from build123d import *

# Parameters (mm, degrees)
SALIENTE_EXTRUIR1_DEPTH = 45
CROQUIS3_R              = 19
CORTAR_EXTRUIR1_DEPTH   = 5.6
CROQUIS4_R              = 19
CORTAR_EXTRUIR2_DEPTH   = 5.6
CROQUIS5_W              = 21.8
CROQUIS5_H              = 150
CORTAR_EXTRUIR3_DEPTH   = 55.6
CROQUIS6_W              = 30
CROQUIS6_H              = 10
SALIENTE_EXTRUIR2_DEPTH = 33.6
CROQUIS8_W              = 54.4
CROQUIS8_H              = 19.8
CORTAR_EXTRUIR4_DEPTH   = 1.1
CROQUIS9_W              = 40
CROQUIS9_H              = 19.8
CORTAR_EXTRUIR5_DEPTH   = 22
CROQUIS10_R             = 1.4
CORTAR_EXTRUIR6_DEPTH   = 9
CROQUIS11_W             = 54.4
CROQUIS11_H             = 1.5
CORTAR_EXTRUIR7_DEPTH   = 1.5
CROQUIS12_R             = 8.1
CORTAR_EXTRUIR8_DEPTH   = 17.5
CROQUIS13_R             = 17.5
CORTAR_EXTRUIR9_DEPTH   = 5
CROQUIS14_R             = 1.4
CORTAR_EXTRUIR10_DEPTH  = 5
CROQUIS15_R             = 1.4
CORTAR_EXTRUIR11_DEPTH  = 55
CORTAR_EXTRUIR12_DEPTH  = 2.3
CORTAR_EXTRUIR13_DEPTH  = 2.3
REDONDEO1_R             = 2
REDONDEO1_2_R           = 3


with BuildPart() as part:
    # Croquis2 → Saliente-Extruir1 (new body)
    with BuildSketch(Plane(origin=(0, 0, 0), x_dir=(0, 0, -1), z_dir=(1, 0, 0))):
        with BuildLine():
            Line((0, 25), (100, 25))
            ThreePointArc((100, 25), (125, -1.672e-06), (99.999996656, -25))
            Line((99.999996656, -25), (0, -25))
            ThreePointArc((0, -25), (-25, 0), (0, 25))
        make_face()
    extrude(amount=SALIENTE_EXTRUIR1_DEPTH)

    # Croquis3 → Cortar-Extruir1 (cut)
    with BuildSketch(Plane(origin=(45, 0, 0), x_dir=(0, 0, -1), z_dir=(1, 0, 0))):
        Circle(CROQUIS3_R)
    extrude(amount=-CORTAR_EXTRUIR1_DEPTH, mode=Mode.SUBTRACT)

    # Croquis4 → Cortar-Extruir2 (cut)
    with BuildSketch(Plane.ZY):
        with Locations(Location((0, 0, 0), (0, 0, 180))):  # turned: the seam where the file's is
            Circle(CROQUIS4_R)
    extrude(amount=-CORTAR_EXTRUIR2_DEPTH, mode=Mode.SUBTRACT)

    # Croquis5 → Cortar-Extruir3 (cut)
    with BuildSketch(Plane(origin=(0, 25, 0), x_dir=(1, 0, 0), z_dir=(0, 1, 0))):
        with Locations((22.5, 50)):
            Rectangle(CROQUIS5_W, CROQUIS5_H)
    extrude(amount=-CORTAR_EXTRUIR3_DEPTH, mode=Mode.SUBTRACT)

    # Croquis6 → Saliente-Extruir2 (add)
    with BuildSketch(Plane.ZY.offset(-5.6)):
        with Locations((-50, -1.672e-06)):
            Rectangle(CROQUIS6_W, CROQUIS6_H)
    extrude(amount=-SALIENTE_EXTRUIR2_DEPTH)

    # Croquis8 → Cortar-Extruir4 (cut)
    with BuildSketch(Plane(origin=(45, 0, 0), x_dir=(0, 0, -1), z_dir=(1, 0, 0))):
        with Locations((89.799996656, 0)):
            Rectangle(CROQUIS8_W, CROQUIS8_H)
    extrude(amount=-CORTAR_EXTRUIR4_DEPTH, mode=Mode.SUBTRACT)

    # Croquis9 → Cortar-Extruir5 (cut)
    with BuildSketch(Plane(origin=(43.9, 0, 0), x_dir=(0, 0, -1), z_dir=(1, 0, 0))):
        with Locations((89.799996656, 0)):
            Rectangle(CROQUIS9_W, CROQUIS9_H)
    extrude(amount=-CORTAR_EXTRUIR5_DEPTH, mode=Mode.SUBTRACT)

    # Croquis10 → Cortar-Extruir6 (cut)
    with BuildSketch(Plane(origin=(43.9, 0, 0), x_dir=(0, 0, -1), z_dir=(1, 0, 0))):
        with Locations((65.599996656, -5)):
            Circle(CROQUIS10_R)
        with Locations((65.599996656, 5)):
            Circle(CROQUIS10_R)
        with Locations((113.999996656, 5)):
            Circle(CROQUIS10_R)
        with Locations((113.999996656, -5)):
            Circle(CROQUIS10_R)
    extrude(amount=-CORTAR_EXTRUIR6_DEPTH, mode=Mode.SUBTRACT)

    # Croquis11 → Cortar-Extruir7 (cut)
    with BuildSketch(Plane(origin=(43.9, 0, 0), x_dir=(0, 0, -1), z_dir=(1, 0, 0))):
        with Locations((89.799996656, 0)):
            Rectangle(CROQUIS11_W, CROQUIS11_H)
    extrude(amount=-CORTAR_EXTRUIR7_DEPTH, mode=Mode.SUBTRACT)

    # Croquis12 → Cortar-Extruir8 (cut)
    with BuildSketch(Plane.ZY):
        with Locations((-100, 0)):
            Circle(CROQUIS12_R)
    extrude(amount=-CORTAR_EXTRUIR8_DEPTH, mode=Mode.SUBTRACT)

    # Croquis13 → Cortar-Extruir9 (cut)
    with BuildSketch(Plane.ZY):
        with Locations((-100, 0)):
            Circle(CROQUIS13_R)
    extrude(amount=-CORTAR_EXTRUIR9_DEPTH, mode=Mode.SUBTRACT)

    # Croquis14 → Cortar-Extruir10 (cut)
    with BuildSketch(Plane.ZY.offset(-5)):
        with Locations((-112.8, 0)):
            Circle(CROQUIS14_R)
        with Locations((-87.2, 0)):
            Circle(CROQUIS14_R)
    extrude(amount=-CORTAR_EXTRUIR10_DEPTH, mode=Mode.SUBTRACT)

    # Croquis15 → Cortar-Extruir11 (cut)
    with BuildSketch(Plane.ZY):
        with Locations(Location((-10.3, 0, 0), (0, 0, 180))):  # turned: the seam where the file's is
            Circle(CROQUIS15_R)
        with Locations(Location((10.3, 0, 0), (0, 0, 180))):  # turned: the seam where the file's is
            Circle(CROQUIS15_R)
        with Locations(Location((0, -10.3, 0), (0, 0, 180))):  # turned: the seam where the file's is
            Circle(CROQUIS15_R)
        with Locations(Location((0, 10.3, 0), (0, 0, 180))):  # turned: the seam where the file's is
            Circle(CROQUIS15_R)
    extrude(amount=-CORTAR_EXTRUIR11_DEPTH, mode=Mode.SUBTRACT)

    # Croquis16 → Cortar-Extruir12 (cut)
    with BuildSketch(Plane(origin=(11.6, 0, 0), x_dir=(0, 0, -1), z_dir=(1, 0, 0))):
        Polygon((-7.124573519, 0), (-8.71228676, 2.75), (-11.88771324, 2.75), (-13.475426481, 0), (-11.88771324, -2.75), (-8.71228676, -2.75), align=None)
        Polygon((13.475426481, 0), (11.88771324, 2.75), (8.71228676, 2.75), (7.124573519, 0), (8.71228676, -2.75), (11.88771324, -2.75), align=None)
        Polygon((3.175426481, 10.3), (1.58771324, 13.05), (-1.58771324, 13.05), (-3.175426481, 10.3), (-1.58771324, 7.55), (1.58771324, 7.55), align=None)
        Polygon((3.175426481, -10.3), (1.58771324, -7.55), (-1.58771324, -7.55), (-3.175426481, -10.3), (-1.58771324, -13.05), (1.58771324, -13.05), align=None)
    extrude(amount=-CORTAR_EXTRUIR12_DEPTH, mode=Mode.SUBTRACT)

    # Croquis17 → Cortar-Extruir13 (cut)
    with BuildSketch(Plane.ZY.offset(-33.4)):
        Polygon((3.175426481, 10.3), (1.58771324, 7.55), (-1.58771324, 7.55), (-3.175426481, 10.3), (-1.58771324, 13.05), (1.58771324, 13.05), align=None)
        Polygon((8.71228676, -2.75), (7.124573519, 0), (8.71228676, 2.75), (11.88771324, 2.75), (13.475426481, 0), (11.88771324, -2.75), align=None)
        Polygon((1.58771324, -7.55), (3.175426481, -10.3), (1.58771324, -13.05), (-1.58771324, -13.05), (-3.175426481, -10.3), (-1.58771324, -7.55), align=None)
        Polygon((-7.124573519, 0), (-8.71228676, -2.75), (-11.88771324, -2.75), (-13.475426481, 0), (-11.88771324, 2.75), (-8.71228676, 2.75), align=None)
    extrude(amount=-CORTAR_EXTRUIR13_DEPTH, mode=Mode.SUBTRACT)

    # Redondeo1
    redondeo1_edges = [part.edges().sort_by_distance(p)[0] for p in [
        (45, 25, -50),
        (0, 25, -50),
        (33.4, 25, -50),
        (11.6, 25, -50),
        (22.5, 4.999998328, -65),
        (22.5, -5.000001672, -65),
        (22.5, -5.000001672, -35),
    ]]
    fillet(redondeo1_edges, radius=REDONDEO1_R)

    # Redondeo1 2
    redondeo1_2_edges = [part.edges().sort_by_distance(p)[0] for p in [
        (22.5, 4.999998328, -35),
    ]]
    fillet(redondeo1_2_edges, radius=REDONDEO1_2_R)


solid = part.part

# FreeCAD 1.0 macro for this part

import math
import FreeCAD as App
import Part
import Sketcher
from FreeCAD import Vector
Q = App.Units.Quantity


def edges_at(feature, points):
    """Names of the edges that pass closest to the given points."""
    edges = feature.Shape.Edges
    near = lambda p: min(range(len(edges)), key=lambda i: edges[i].distToShape(Part.Vertex(*p))[0])
    return sorted({f"Edge{near(p) + 1}" for p in points})


def add_polygon(sketch, points):
    """Adds a closed chain of lines whose ends are joined by coincident constraints."""
    first, n = sketch.GeometryCount, len(points)
    for a, b in zip(points, points[1:] + points[:1]):
        sketch.addGeometry(Part.LineSegment(App.Vector(*a, 0), App.Vector(*b, 0)), False)
    for i in range(n):
        sketch.addConstraint(Sketcher.Constraint("Coincident", first + i, 2, first + (i + 1) % n, 1))

doc = App.newDocument("Part")
body = doc.addObject("PartDesign::Body", "Body")
body.AllowCompound = True

# Sketch on YZ plane
sketch1 = body.newObject("Sketcher::SketchObject", "Sketch")
sketch1.AttachmentSupport = (doc.getObject("YZ_Plane"), [""])
sketch1.MapMode = "FlatFace"
sketch1.addGeometry([
    Part.LineSegment(Vector(25, -100, 0), Vector(25, 0, 0)),
    Part.ArcOfCircle(Part.Circle(Vector(0, 0, 0), Vector(0, 0, 1), 25), math.radians(0), math.radians(180)),
    Part.LineSegment(Vector(-25, 0, 0), Vector(-25, -99.999997, 0)),
    Part.ArcOfCircle(Part.Circle(Vector(0, -100, 0), Vector(0, 0, 1), 25), math.radians(179.999992), math.radians(360)),
], False)
sketch1.addConstraint([
    Sketcher.Constraint("Tangent", 0, 2, 1, 1),
    Sketcher.Constraint("Tangent", 1, 2, 2, 1),
    Sketcher.Constraint("Tangent", 2, 2, 3, 1),
    Sketcher.Constraint("Tangent", 3, 2, 0, 1),
    Sketcher.Constraint("Vertical", 0),
    Sketcher.Constraint("Vertical", 2),
    Sketcher.Constraint("Coincident", 1, 3, -1, 1),
    Sketcher.Constraint("Radius", 1, Q("25 mm")),
    Sketcher.Constraint("DistanceY", 0, 1, 0, 2, Q("100 mm")),
])
pad1 = body.newObject("PartDesign::Pad", "Pad")
pad1.Profile = sketch1
pad1.Length = 45

# Sketch on YZ plane
sketch2 = body.newObject("Sketcher::SketchObject", "Sketch001")
sketch2.AttachmentSupport = (doc.getObject("YZ_Plane"), [""])
sketch2.MapMode = "FlatFace"
sketch2.AttachmentOffset = App.Placement(Vector(0, 0, 45), App.Rotation())
sketch2.addGeometry(Part.Circle(Vector(0, 0, 0), Vector(0, 0, 1), 19), False)
sketch2.addConstraint([
    Sketcher.Constraint("Coincident", 0, 3, -1, 1),
    Sketcher.Constraint("Diameter", 0, Q("38 mm")),
])
pocket1 = body.newObject("PartDesign::Pocket", "Pocket")
pocket1.Profile = sketch2
pocket1.Length = 5.6

# Sketch on YZ plane
sketch3 = body.newObject("Sketcher::SketchObject", "Sketch002")
sketch3.AttachmentSupport = (doc.getObject("YZ_Plane"), [""])
sketch3.MapMode = "FlatFace"
sketch3.addGeometry(Part.Circle(Vector(0, 0, 0), Vector(0, 0, 1), 19), False)
sketch3.addConstraint([
    Sketcher.Constraint("Coincident", 0, 3, -1, 1),
    Sketcher.Constraint("Diameter", 0, Q("38 mm")),
])
pocket2 = body.newObject("PartDesign::Pocket", "Pocket001")
pocket2.Profile = sketch3
pocket2.Length = 5.6
pocket2.Reversed = True

# Sketch on XZ plane
sketch4 = body.newObject("Sketcher::SketchObject", "Sketch003")
sketch4.AttachmentSupport = (doc.getObject("XZ_Plane"), [""])
sketch4.MapMode = "FlatFace"
sketch4.AttachmentOffset = App.Placement(Vector(0, 0, -25), App.Rotation())
add_polygon(sketch4, [(11.6, -125), (11.6, 25), (33.4, 25), (33.4, -125)])  # lines 0-3
sketch4.addConstraint([
    Sketcher.Constraint("Vertical", 0),
    Sketcher.Constraint("Horizontal", 1),
    Sketcher.Constraint("Vertical", 2),
    Sketcher.Constraint("Horizontal", 3),
    Sketcher.Constraint("DistanceY", 0, 1, 0, 2, Q("150 mm")),
    Sketcher.Constraint("DistanceX", 1, 1, 1, 2, Q("21.8 mm")),
    Sketcher.Constraint("DistanceY", -1, 1, 0, 2, Q("25 mm")),
    Sketcher.Constraint("DistanceX", -1, 1, 0, 2, Q("11.6 mm")),
])
pocket3 = body.newObject("PartDesign::Pocket", "Pocket002")
pocket3.Profile = sketch4
pocket3.Length = 55.6
pocket3.Reversed = True

# Sketch on YZ plane
sketch5 = body.newObject("Sketcher::SketchObject", "Sketch004")
sketch5.AttachmentSupport = (doc.getObject("YZ_Plane"), [""])
sketch5.MapMode = "FlatFace"
sketch5.AttachmentOffset = App.Placement(Vector(0, 0, 5.6), App.Rotation())
add_polygon(sketch5, [(4.999998, -65), (-5.000002, -65), (-5.000002, -35), (4.999998, -35)])  # lines 0-3
sketch5.addConstraint([
    Sketcher.Constraint("Horizontal", 0),
    Sketcher.Constraint("Vertical", 1),
    Sketcher.Constraint("Horizontal", 2),
    Sketcher.Constraint("Vertical", 3),
    Sketcher.Constraint("DistanceX", 0, 2, 0, 1, Q("10 mm")),
    Sketcher.Constraint("DistanceY", 1, 1, 1, 2, Q("30 mm")),
    Sketcher.Constraint("DistanceX", 0, 2, -1, 1, Q("5.000002 mm")),
    Sketcher.Constraint("DistanceY", 0, 2, -1, 1, Q("65 mm")),
])
pad2 = body.newObject("PartDesign::Pad", "Pad001")
pad2.Profile = sketch5
pad2.Length = 33.6

# Sketch on YZ plane
sketch6 = body.newObject("Sketcher::SketchObject", "Sketch005")
sketch6.AttachmentSupport = (doc.getObject("YZ_Plane"), [""])
sketch6.MapMode = "FlatFace"
sketch6.AttachmentOffset = App.Placement(Vector(0, 0, 45), App.Rotation())
add_polygon(sketch6, [(9.9, -62.599997), (-9.9, -62.599997), (-9.9, -116.999997), (9.9, -116.999997)])  # lines 0-3
sketch6.addConstraint([
    Sketcher.Constraint("Horizontal", 0),
    Sketcher.Constraint("Vertical", 1),
    Sketcher.Constraint("Horizontal", 2),
    Sketcher.Constraint("Vertical", 3),
    Sketcher.Constraint("DistanceX", 0, 2, 0, 1, Q("19.8 mm")),
    Sketcher.Constraint("DistanceY", 1, 2, 1, 1, Q("54.4 mm")),
    Sketcher.Constraint("DistanceX", 0, 2, -1, 1, Q("9.9 mm")),
    Sketcher.Constraint("DistanceY", 0, 2, -1, 1, Q("62.599997 mm")),
])
pocket4 = body.newObject("PartDesign::Pocket", "Pocket003")
pocket4.Profile = sketch6
pocket4.Length = 1.1

# Sketch on YZ plane
sketch7 = body.newObject("Sketcher::SketchObject", "Sketch006")
sketch7.AttachmentSupport = (doc.getObject("YZ_Plane"), [""])
sketch7.MapMode = "FlatFace"
sketch7.AttachmentOffset = App.Placement(Vector(0, 0, 43.9), App.Rotation())
add_polygon(sketch7, [(9.9, -69.799997), (-9.9, -69.799997), (-9.9, -109.799997), (9.9, -109.799997)])  # lines 0-3
sketch7.addConstraint([
    Sketcher.Constraint("Horizontal", 0),
    Sketcher.Constraint("Vertical", 1),
    Sketcher.Constraint("Horizontal", 2),
    Sketcher.Constraint("Vertical", 3),
    Sketcher.Constraint("DistanceY", 1, 2, 1, 1, Q("40 mm")),
    Sketcher.Constraint("DistanceX", 0, 2, 0, 1, Q("19.8 mm")),
    Sketcher.Constraint("DistanceX", 0, 2, -1, 1, Q("9.9 mm")),
    Sketcher.Constraint("DistanceY", 0, 2, -1, 1, Q("69.799997 mm")),
])
pocket5 = body.newObject("PartDesign::Pocket", "Pocket004")
pocket5.Profile = sketch7
pocket5.Length = 22

# Sketch on YZ plane
sketch8 = body.newObject("Sketcher::SketchObject", "Sketch007")
sketch8.AttachmentSupport = (doc.getObject("YZ_Plane"), [""])
sketch8.MapMode = "FlatFace"
sketch8.AttachmentOffset = App.Placement(Vector(0, 0, 43.9), App.Rotation())
sketch8.addGeometry([
    Part.Circle(Vector(-5, -65.599997, 0), Vector(0, 0, 1), 1.4),
    Part.Circle(Vector(5, -65.599997, 0), Vector(0, 0, 1), 1.4),
    Part.Circle(Vector(5, -113.999997, 0), Vector(0, 0, 1), 1.4),
    Part.Circle(Vector(-5, -113.999997, 0), Vector(0, 0, 1), 1.4),
], False)
sketch8.addConstraint([
    Sketcher.Constraint("Equal", 0, 1),
    Sketcher.Constraint("Equal", 1, 2),
    Sketcher.Constraint("Equal", 2, 3),
    Sketcher.Constraint("Symmetric", 0, 3, 1, 3, -2),
    Sketcher.Constraint("Symmetric", 2, 3, 3, 3, -2),
    Sketcher.Constraint("Vertical", 1, 3, 2, 3),
    Sketcher.Constraint("Diameter", 0, Q("2.8 mm")),
    Sketcher.Constraint("DistanceX", 0, 3, -1, 1, Q("5 mm")),
    Sketcher.Constraint("DistanceY", 2, 3, 1, 3, Q("48.4 mm")),
    Sketcher.Constraint("DistanceY", 0, 3, -1, 1, Q("65.599997 mm")),
])
pocket6 = body.newObject("PartDesign::Pocket", "Pocket005")
pocket6.Profile = sketch8
pocket6.Length = 9

# Sketch on YZ plane
sketch9 = body.newObject("Sketcher::SketchObject", "Sketch008")
sketch9.AttachmentSupport = (doc.getObject("YZ_Plane"), [""])
sketch9.MapMode = "FlatFace"
sketch9.AttachmentOffset = App.Placement(Vector(0, 0, 43.9), App.Rotation())
add_polygon(sketch9, [(0.75, -62.599997), (-0.75, -62.599997), (-0.75, -116.999997), (0.75, -116.999997)])  # lines 0-3
sketch9.addConstraint([
    Sketcher.Constraint("Horizontal", 0),
    Sketcher.Constraint("Vertical", 1),
    Sketcher.Constraint("Horizontal", 2),
    Sketcher.Constraint("Vertical", 3),
    Sketcher.Constraint("DistanceX", 0, 2, 0, 1, Q("1.5 mm")),
    Sketcher.Constraint("DistanceY", 1, 2, 1, 1, Q("54.4 mm")),
    Sketcher.Constraint("DistanceX", 0, 2, -1, 1, Q("0.75 mm")),
    Sketcher.Constraint("DistanceY", 0, 2, -1, 1, Q("62.599997 mm")),
])
pocket7 = body.newObject("PartDesign::Pocket", "Pocket006")
pocket7.Profile = sketch9
pocket7.Length = 1.5

# Sketch on YZ plane
sketch10 = body.newObject("Sketcher::SketchObject", "Sketch009")
sketch10.AttachmentSupport = (doc.getObject("YZ_Plane"), [""])
sketch10.MapMode = "FlatFace"
sketch10.addGeometry(Part.Circle(Vector(0, -100, 0), Vector(0, 0, 1), 8.1), False)
sketch10.addConstraint([
    Sketcher.Constraint("PointOnObject", 0, 3, -2),
    Sketcher.Constraint("Diameter", 0, Q("16.2 mm")),
    Sketcher.Constraint("DistanceY", 0, 3, -1, 1, Q("100 mm")),
])
pocket8 = body.newObject("PartDesign::Pocket", "Pocket007")
pocket8.Profile = sketch10
pocket8.Length = 17.5
pocket8.Reversed = True

# Sketch on YZ plane
sketch11 = body.newObject("Sketcher::SketchObject", "Sketch010")
sketch11.AttachmentSupport = (doc.getObject("YZ_Plane"), [""])
sketch11.MapMode = "FlatFace"
sketch11.addGeometry(Part.Circle(Vector(0, -100, 0), Vector(0, 0, 1), 17.5), False)
sketch11.addConstraint([
    Sketcher.Constraint("PointOnObject", 0, 3, -2),
    Sketcher.Constraint("Diameter", 0, Q("35 mm")),
    Sketcher.Constraint("DistanceY", 0, 3, -1, 1, Q("100 mm")),
])
pocket9 = body.newObject("PartDesign::Pocket", "Pocket008")
pocket9.Profile = sketch11
pocket9.Length = 5
pocket9.Reversed = True

# Sketch on YZ plane
sketch12 = body.newObject("Sketcher::SketchObject", "Sketch011")
sketch12.AttachmentSupport = (doc.getObject("YZ_Plane"), [""])
sketch12.MapMode = "FlatFace"
sketch12.AttachmentOffset = App.Placement(Vector(0, 0, 5), App.Rotation())
sketch12.addGeometry([
    Part.Circle(Vector(0, -112.8, 0), Vector(0, 0, 1), 1.4),
    Part.Circle(Vector(0, -87.2, 0), Vector(0, 0, 1), 1.4),
], False)
sketch12.addConstraint([
    Sketcher.Constraint("Equal", 0, 1),
    Sketcher.Constraint("PointOnObject", 0, 3, -2),
    Sketcher.Constraint("PointOnObject", 1, 3, -2),
    Sketcher.Constraint("Diameter", 0, Q("2.8 mm")),
    Sketcher.Constraint("DistanceY", 0, 3, -1, 1, Q("112.8 mm")),
    Sketcher.Constraint("DistanceY", 1, 3, -1, 1, Q("87.2 mm")),
])
pocket10 = body.newObject("PartDesign::Pocket", "Pocket009")
pocket10.Profile = sketch12
pocket10.Length = 5
pocket10.Reversed = True

# Sketch on YZ plane
sketch13 = body.newObject("Sketcher::SketchObject", "Sketch012")
sketch13.AttachmentSupport = (doc.getObject("YZ_Plane"), [""])
sketch13.MapMode = "FlatFace"
sketch13.addGeometry([
    Part.Circle(Vector(0, -10.3, 0), Vector(0, 0, 1), 1.4),
    Part.Circle(Vector(0, 10.3, 0), Vector(0, 0, 1), 1.4),
    Part.Circle(Vector(-10.3, 0, 0), Vector(0, 0, 1), 1.4),
    Part.Circle(Vector(10.3, 0, 0), Vector(0, 0, 1), 1.4),
], False)
sketch13.addConstraint([
    Sketcher.Constraint("Equal", 0, 1),
    Sketcher.Constraint("Equal", 1, 2),
    Sketcher.Constraint("Equal", 2, 3),
    Sketcher.Constraint("Symmetric", 0, 3, 1, 3, -1, 1),
    Sketcher.Constraint("Symmetric", 2, 3, 3, 3, -1, 1),
    Sketcher.Constraint("PointOnObject", 0, 3, -2),
    Sketcher.Constraint("PointOnObject", 2, 3, -1),
    Sketcher.Constraint("Diameter", 0, Q("2.8 mm")),
    Sketcher.Constraint("DistanceY", 0, 3, -1, 1, Q("10.3 mm")),
    Sketcher.Constraint("DistanceX", 2, 3, -1, 1, Q("10.3 mm")),
])
pocket11 = body.newObject("PartDesign::Pocket", "Pocket010")
pocket11.Profile = sketch13
pocket11.Length = 55
pocket11.Reversed = True

# Sketch on YZ plane
sketch14 = body.newObject("Sketcher::SketchObject", "Sketch013")
sketch14.AttachmentSupport = (doc.getObject("YZ_Plane"), [""])
sketch14.MapMode = "FlatFace"
sketch14.AttachmentOffset = App.Placement(Vector(0, 0, 11.6), App.Rotation())
add_polygon(sketch14, [(0, 7.124574), (2.75, 8.712287), (2.75, 11.887713), (0, 13.475426), (-2.75, 11.887713), (-2.75, 8.712287)])  # lines 0-5
add_polygon(sketch14, [(0, -13.475426), (2.75, -11.887713), (2.75, -8.712287), (0, -7.124574), (-2.75, -8.712287), (-2.75, -11.887713)])  # lines 6-11
add_polygon(sketch14, [(10.3, -3.175426), (13.05, -1.587713), (13.05, 1.587713), (10.3, 3.175426), (7.55, 1.587713), (7.55, -1.587713)])  # lines 12-17
add_polygon(sketch14, [(-10.3, -3.175426), (-7.55, -1.587713), (-7.55, 1.587713), (-10.3, 3.175426), (-13.05, 1.587713), (-13.05, -1.587713)])  # lines 18-23
sketch14.addConstraint([
    Sketcher.Constraint("Vertical", 1),
    Sketcher.Constraint("Vertical", 4),
    Sketcher.Constraint("Vertical", 7),
    Sketcher.Constraint("Vertical", 10),
    Sketcher.Constraint("Vertical", 13),
    Sketcher.Constraint("Vertical", 16),
    Sketcher.Constraint("Vertical", 19),
    Sketcher.Constraint("Vertical", 22),
    Sketcher.Constraint("Symmetric", 3, 2, 6, 2, -1, 1),
    Sketcher.Constraint("Symmetric", 5, 2, 8, 2, -1, 1),
    Sketcher.Constraint("Symmetric", 0, 2, 9, 2, -1, 1),
    Sketcher.Constraint("Symmetric", 2, 2, 11, 2, -1, 1),
    Sketcher.Constraint("Symmetric", 15, 2, 18, 2, -1, 1),
    Sketcher.Constraint("Symmetric", 17, 2, 20, 2, -1, 1),
    Sketcher.Constraint("Symmetric", 12, 2, 21, 2, -1, 1),
    Sketcher.Constraint("Symmetric", 14, 2, 23, 2, -1, 1),
    Sketcher.Constraint("Symmetric", 1, 2, 3, 2, -2),
    Sketcher.Constraint("Symmetric", 14, 2, 20, 2, -2),
    Sketcher.Constraint("PointOnObject", 2, 2, -2),
    Sketcher.Constraint("PointOnObject", 5, 2, -2),
    Sketcher.Constraint("Parallel", 0, 3),
    Sketcher.Constraint("Parallel", 2, 5),
    Sketcher.Constraint("Parallel", 5, 8),
    Sketcher.Constraint("Parallel", 8, 11),
    Sketcher.Constraint("Parallel", 9, 12),
    Sketcher.Constraint("Parallel", 11, 14),
    Sketcher.Constraint("Parallel", 12, 15),
    Sketcher.Constraint("Parallel", 14, 17),
    Sketcher.Constraint("Parallel", 17, 20),
    Sketcher.Constraint("Parallel", 20, 23),
    Sketcher.Constraint("Horizontal", 13, 2, 15, 2),
    Sketcher.Constraint("Equal", 10, 13),
    Sketcher.Constraint("Equal", 11, 12),
    Sketcher.Constraint("Angle", 0, Q("30 deg")),
    Sketcher.Constraint("DistanceX", -1, 1, 14, 2, Q("10.3 mm")),
    Sketcher.Constraint("DistanceX", 3, 2, 1, 2, Q("5.5 mm")),
    Sketcher.Constraint("DistanceY", 6, 2, 0, 2, Q("20.6 mm")),
    Sketcher.Constraint("DistanceY", 1, 1, 1, 2, Q("3.175426 mm")),
])
pocket12 = body.newObject("PartDesign::Pocket", "Pocket011")
pocket12.Profile = sketch14
pocket12.Length = 2.3

# Sketch on YZ plane
sketch15 = body.newObject("Sketcher::SketchObject", "Sketch014")
sketch15.AttachmentSupport = (doc.getObject("YZ_Plane"), [""])
sketch15.MapMode = "FlatFace"
sketch15.AttachmentOffset = App.Placement(Vector(0, 0, 33.4), App.Rotation())
add_polygon(sketch15, [(7.55, 1.587713), (10.3, 3.175426), (13.05, 1.587713), (13.05, -1.587713), (10.3, -3.175426), (7.55, -1.587713)])  # lines 0-5
add_polygon(sketch15, [(0, 7.124574), (-2.75, 8.712287), (-2.75, 11.887713), (0, 13.475426), (2.75, 11.887713), (2.75, 8.712287)])  # lines 6-11
add_polygon(sketch15, [(-10.3, 3.175426), (-7.55, 1.587713), (-7.55, -1.587713), (-10.3, -3.175426), (-13.05, -1.587713), (-13.05, 1.587713)])  # lines 12-17
add_polygon(sketch15, [(-2.75, -8.712287), (0, -7.124574), (2.75, -8.712287), (2.75, -11.887713), (0, -13.475426), (-2.75, -11.887713)])  # lines 18-23
sketch15.addConstraint([
    Sketcher.Constraint("Vertical", 2),
    Sketcher.Constraint("Vertical", 5),
    Sketcher.Constraint("Vertical", 7),
    Sketcher.Constraint("Vertical", 10),
    Sketcher.Constraint("Vertical", 13),
    Sketcher.Constraint("Vertical", 16),
    Sketcher.Constraint("Vertical", 20),
    Sketcher.Constraint("Vertical", 23),
    Sketcher.Constraint("Symmetric", 4, 2, 12, 2, -1, 1),
    Sketcher.Constraint("Symmetric", 0, 2, 14, 2, -1, 1),
    Sketcher.Constraint("Symmetric", 1, 2, 15, 2, -1, 1),
    Sketcher.Constraint("Symmetric", 3, 2, 17, 2, -1, 1),
    Sketcher.Constraint("Symmetric", 11, 2, 18, 2, -1, 1),
    Sketcher.Constraint("Symmetric", 6, 2, 19, 2, -1, 1),
    Sketcher.Constraint("Symmetric", 8, 2, 21, 2, -1, 1),
    Sketcher.Constraint("Symmetric", 9, 2, 22, 2, -1, 1),
    Sketcher.Constraint("Symmetric", 7, 2, 9, 2, -2),
    Sketcher.Constraint("Symmetric", 3, 2, 14, 2, -2),
    Sketcher.Constraint("PointOnObject", 8, 2, -2),
    Sketcher.Constraint("PointOnObject", 11, 2, -2),
    Sketcher.Constraint("Parallel", 0, 3),
    Sketcher.Constraint("Parallel", 1, 4),
    Sketcher.Constraint("Parallel", 4, 6),
    Sketcher.Constraint("Parallel", 3, 8),
    Sketcher.Constraint("Parallel", 6, 9),
    Sketcher.Constraint("Parallel", 8, 11),
    Sketcher.Constraint("Parallel", 11, 14),
    Sketcher.Constraint("Parallel", 14, 17),
    Sketcher.Constraint("Parallel", 17, 18),
    Sketcher.Constraint("Parallel", 18, 21),
    Sketcher.Constraint("Horizontal", 2, 2, 4, 2),
    Sketcher.Constraint("Equal", 5, 7),
    Sketcher.Constraint("Equal", 4, 6),
    Sketcher.Constraint("Angle", 0, Q("30 deg")),
    Sketcher.Constraint("DistanceX", -1, 1, 0, 2, Q("10.3 mm")),
    Sketcher.Constraint("DistanceX", 4, 2, 2, 2, Q("5.5 mm")),
    Sketcher.Constraint("DistanceY", 4, 2, 6, 2, Q("10.3 mm")),
    Sketcher.Constraint("DistanceY", 2, 2, 2, 1, Q("3.175426 mm")),
])
pocket13 = body.newObject("PartDesign::Pocket", "Pocket012")
pocket13.Profile = sketch15
pocket13.Length = 2.3
pocket13.Reversed = True
doc.recompute()

fillet = body.newObject("PartDesign::Fillet", "Fillet")
fillet.Base = (pocket13, edges_at(pocket13, [
    (45, 25, -50),
    (0, 25, -50),
    (33.4, 25, -50),
    (11.6, 25, -50),
    (22.5, 5, -65),
    (22.5, -5, -65),
    (22.5, -5, -35),
]))
fillet.Radius = 2
doc.recompute()

fillet2 = body.newObject("PartDesign::Fillet", "Fillet001")
fillet2.Base = (fillet, edges_at(fillet, [(22.5, 5, -35)]))
fillet2.Radius = 3

doc.recompute()
